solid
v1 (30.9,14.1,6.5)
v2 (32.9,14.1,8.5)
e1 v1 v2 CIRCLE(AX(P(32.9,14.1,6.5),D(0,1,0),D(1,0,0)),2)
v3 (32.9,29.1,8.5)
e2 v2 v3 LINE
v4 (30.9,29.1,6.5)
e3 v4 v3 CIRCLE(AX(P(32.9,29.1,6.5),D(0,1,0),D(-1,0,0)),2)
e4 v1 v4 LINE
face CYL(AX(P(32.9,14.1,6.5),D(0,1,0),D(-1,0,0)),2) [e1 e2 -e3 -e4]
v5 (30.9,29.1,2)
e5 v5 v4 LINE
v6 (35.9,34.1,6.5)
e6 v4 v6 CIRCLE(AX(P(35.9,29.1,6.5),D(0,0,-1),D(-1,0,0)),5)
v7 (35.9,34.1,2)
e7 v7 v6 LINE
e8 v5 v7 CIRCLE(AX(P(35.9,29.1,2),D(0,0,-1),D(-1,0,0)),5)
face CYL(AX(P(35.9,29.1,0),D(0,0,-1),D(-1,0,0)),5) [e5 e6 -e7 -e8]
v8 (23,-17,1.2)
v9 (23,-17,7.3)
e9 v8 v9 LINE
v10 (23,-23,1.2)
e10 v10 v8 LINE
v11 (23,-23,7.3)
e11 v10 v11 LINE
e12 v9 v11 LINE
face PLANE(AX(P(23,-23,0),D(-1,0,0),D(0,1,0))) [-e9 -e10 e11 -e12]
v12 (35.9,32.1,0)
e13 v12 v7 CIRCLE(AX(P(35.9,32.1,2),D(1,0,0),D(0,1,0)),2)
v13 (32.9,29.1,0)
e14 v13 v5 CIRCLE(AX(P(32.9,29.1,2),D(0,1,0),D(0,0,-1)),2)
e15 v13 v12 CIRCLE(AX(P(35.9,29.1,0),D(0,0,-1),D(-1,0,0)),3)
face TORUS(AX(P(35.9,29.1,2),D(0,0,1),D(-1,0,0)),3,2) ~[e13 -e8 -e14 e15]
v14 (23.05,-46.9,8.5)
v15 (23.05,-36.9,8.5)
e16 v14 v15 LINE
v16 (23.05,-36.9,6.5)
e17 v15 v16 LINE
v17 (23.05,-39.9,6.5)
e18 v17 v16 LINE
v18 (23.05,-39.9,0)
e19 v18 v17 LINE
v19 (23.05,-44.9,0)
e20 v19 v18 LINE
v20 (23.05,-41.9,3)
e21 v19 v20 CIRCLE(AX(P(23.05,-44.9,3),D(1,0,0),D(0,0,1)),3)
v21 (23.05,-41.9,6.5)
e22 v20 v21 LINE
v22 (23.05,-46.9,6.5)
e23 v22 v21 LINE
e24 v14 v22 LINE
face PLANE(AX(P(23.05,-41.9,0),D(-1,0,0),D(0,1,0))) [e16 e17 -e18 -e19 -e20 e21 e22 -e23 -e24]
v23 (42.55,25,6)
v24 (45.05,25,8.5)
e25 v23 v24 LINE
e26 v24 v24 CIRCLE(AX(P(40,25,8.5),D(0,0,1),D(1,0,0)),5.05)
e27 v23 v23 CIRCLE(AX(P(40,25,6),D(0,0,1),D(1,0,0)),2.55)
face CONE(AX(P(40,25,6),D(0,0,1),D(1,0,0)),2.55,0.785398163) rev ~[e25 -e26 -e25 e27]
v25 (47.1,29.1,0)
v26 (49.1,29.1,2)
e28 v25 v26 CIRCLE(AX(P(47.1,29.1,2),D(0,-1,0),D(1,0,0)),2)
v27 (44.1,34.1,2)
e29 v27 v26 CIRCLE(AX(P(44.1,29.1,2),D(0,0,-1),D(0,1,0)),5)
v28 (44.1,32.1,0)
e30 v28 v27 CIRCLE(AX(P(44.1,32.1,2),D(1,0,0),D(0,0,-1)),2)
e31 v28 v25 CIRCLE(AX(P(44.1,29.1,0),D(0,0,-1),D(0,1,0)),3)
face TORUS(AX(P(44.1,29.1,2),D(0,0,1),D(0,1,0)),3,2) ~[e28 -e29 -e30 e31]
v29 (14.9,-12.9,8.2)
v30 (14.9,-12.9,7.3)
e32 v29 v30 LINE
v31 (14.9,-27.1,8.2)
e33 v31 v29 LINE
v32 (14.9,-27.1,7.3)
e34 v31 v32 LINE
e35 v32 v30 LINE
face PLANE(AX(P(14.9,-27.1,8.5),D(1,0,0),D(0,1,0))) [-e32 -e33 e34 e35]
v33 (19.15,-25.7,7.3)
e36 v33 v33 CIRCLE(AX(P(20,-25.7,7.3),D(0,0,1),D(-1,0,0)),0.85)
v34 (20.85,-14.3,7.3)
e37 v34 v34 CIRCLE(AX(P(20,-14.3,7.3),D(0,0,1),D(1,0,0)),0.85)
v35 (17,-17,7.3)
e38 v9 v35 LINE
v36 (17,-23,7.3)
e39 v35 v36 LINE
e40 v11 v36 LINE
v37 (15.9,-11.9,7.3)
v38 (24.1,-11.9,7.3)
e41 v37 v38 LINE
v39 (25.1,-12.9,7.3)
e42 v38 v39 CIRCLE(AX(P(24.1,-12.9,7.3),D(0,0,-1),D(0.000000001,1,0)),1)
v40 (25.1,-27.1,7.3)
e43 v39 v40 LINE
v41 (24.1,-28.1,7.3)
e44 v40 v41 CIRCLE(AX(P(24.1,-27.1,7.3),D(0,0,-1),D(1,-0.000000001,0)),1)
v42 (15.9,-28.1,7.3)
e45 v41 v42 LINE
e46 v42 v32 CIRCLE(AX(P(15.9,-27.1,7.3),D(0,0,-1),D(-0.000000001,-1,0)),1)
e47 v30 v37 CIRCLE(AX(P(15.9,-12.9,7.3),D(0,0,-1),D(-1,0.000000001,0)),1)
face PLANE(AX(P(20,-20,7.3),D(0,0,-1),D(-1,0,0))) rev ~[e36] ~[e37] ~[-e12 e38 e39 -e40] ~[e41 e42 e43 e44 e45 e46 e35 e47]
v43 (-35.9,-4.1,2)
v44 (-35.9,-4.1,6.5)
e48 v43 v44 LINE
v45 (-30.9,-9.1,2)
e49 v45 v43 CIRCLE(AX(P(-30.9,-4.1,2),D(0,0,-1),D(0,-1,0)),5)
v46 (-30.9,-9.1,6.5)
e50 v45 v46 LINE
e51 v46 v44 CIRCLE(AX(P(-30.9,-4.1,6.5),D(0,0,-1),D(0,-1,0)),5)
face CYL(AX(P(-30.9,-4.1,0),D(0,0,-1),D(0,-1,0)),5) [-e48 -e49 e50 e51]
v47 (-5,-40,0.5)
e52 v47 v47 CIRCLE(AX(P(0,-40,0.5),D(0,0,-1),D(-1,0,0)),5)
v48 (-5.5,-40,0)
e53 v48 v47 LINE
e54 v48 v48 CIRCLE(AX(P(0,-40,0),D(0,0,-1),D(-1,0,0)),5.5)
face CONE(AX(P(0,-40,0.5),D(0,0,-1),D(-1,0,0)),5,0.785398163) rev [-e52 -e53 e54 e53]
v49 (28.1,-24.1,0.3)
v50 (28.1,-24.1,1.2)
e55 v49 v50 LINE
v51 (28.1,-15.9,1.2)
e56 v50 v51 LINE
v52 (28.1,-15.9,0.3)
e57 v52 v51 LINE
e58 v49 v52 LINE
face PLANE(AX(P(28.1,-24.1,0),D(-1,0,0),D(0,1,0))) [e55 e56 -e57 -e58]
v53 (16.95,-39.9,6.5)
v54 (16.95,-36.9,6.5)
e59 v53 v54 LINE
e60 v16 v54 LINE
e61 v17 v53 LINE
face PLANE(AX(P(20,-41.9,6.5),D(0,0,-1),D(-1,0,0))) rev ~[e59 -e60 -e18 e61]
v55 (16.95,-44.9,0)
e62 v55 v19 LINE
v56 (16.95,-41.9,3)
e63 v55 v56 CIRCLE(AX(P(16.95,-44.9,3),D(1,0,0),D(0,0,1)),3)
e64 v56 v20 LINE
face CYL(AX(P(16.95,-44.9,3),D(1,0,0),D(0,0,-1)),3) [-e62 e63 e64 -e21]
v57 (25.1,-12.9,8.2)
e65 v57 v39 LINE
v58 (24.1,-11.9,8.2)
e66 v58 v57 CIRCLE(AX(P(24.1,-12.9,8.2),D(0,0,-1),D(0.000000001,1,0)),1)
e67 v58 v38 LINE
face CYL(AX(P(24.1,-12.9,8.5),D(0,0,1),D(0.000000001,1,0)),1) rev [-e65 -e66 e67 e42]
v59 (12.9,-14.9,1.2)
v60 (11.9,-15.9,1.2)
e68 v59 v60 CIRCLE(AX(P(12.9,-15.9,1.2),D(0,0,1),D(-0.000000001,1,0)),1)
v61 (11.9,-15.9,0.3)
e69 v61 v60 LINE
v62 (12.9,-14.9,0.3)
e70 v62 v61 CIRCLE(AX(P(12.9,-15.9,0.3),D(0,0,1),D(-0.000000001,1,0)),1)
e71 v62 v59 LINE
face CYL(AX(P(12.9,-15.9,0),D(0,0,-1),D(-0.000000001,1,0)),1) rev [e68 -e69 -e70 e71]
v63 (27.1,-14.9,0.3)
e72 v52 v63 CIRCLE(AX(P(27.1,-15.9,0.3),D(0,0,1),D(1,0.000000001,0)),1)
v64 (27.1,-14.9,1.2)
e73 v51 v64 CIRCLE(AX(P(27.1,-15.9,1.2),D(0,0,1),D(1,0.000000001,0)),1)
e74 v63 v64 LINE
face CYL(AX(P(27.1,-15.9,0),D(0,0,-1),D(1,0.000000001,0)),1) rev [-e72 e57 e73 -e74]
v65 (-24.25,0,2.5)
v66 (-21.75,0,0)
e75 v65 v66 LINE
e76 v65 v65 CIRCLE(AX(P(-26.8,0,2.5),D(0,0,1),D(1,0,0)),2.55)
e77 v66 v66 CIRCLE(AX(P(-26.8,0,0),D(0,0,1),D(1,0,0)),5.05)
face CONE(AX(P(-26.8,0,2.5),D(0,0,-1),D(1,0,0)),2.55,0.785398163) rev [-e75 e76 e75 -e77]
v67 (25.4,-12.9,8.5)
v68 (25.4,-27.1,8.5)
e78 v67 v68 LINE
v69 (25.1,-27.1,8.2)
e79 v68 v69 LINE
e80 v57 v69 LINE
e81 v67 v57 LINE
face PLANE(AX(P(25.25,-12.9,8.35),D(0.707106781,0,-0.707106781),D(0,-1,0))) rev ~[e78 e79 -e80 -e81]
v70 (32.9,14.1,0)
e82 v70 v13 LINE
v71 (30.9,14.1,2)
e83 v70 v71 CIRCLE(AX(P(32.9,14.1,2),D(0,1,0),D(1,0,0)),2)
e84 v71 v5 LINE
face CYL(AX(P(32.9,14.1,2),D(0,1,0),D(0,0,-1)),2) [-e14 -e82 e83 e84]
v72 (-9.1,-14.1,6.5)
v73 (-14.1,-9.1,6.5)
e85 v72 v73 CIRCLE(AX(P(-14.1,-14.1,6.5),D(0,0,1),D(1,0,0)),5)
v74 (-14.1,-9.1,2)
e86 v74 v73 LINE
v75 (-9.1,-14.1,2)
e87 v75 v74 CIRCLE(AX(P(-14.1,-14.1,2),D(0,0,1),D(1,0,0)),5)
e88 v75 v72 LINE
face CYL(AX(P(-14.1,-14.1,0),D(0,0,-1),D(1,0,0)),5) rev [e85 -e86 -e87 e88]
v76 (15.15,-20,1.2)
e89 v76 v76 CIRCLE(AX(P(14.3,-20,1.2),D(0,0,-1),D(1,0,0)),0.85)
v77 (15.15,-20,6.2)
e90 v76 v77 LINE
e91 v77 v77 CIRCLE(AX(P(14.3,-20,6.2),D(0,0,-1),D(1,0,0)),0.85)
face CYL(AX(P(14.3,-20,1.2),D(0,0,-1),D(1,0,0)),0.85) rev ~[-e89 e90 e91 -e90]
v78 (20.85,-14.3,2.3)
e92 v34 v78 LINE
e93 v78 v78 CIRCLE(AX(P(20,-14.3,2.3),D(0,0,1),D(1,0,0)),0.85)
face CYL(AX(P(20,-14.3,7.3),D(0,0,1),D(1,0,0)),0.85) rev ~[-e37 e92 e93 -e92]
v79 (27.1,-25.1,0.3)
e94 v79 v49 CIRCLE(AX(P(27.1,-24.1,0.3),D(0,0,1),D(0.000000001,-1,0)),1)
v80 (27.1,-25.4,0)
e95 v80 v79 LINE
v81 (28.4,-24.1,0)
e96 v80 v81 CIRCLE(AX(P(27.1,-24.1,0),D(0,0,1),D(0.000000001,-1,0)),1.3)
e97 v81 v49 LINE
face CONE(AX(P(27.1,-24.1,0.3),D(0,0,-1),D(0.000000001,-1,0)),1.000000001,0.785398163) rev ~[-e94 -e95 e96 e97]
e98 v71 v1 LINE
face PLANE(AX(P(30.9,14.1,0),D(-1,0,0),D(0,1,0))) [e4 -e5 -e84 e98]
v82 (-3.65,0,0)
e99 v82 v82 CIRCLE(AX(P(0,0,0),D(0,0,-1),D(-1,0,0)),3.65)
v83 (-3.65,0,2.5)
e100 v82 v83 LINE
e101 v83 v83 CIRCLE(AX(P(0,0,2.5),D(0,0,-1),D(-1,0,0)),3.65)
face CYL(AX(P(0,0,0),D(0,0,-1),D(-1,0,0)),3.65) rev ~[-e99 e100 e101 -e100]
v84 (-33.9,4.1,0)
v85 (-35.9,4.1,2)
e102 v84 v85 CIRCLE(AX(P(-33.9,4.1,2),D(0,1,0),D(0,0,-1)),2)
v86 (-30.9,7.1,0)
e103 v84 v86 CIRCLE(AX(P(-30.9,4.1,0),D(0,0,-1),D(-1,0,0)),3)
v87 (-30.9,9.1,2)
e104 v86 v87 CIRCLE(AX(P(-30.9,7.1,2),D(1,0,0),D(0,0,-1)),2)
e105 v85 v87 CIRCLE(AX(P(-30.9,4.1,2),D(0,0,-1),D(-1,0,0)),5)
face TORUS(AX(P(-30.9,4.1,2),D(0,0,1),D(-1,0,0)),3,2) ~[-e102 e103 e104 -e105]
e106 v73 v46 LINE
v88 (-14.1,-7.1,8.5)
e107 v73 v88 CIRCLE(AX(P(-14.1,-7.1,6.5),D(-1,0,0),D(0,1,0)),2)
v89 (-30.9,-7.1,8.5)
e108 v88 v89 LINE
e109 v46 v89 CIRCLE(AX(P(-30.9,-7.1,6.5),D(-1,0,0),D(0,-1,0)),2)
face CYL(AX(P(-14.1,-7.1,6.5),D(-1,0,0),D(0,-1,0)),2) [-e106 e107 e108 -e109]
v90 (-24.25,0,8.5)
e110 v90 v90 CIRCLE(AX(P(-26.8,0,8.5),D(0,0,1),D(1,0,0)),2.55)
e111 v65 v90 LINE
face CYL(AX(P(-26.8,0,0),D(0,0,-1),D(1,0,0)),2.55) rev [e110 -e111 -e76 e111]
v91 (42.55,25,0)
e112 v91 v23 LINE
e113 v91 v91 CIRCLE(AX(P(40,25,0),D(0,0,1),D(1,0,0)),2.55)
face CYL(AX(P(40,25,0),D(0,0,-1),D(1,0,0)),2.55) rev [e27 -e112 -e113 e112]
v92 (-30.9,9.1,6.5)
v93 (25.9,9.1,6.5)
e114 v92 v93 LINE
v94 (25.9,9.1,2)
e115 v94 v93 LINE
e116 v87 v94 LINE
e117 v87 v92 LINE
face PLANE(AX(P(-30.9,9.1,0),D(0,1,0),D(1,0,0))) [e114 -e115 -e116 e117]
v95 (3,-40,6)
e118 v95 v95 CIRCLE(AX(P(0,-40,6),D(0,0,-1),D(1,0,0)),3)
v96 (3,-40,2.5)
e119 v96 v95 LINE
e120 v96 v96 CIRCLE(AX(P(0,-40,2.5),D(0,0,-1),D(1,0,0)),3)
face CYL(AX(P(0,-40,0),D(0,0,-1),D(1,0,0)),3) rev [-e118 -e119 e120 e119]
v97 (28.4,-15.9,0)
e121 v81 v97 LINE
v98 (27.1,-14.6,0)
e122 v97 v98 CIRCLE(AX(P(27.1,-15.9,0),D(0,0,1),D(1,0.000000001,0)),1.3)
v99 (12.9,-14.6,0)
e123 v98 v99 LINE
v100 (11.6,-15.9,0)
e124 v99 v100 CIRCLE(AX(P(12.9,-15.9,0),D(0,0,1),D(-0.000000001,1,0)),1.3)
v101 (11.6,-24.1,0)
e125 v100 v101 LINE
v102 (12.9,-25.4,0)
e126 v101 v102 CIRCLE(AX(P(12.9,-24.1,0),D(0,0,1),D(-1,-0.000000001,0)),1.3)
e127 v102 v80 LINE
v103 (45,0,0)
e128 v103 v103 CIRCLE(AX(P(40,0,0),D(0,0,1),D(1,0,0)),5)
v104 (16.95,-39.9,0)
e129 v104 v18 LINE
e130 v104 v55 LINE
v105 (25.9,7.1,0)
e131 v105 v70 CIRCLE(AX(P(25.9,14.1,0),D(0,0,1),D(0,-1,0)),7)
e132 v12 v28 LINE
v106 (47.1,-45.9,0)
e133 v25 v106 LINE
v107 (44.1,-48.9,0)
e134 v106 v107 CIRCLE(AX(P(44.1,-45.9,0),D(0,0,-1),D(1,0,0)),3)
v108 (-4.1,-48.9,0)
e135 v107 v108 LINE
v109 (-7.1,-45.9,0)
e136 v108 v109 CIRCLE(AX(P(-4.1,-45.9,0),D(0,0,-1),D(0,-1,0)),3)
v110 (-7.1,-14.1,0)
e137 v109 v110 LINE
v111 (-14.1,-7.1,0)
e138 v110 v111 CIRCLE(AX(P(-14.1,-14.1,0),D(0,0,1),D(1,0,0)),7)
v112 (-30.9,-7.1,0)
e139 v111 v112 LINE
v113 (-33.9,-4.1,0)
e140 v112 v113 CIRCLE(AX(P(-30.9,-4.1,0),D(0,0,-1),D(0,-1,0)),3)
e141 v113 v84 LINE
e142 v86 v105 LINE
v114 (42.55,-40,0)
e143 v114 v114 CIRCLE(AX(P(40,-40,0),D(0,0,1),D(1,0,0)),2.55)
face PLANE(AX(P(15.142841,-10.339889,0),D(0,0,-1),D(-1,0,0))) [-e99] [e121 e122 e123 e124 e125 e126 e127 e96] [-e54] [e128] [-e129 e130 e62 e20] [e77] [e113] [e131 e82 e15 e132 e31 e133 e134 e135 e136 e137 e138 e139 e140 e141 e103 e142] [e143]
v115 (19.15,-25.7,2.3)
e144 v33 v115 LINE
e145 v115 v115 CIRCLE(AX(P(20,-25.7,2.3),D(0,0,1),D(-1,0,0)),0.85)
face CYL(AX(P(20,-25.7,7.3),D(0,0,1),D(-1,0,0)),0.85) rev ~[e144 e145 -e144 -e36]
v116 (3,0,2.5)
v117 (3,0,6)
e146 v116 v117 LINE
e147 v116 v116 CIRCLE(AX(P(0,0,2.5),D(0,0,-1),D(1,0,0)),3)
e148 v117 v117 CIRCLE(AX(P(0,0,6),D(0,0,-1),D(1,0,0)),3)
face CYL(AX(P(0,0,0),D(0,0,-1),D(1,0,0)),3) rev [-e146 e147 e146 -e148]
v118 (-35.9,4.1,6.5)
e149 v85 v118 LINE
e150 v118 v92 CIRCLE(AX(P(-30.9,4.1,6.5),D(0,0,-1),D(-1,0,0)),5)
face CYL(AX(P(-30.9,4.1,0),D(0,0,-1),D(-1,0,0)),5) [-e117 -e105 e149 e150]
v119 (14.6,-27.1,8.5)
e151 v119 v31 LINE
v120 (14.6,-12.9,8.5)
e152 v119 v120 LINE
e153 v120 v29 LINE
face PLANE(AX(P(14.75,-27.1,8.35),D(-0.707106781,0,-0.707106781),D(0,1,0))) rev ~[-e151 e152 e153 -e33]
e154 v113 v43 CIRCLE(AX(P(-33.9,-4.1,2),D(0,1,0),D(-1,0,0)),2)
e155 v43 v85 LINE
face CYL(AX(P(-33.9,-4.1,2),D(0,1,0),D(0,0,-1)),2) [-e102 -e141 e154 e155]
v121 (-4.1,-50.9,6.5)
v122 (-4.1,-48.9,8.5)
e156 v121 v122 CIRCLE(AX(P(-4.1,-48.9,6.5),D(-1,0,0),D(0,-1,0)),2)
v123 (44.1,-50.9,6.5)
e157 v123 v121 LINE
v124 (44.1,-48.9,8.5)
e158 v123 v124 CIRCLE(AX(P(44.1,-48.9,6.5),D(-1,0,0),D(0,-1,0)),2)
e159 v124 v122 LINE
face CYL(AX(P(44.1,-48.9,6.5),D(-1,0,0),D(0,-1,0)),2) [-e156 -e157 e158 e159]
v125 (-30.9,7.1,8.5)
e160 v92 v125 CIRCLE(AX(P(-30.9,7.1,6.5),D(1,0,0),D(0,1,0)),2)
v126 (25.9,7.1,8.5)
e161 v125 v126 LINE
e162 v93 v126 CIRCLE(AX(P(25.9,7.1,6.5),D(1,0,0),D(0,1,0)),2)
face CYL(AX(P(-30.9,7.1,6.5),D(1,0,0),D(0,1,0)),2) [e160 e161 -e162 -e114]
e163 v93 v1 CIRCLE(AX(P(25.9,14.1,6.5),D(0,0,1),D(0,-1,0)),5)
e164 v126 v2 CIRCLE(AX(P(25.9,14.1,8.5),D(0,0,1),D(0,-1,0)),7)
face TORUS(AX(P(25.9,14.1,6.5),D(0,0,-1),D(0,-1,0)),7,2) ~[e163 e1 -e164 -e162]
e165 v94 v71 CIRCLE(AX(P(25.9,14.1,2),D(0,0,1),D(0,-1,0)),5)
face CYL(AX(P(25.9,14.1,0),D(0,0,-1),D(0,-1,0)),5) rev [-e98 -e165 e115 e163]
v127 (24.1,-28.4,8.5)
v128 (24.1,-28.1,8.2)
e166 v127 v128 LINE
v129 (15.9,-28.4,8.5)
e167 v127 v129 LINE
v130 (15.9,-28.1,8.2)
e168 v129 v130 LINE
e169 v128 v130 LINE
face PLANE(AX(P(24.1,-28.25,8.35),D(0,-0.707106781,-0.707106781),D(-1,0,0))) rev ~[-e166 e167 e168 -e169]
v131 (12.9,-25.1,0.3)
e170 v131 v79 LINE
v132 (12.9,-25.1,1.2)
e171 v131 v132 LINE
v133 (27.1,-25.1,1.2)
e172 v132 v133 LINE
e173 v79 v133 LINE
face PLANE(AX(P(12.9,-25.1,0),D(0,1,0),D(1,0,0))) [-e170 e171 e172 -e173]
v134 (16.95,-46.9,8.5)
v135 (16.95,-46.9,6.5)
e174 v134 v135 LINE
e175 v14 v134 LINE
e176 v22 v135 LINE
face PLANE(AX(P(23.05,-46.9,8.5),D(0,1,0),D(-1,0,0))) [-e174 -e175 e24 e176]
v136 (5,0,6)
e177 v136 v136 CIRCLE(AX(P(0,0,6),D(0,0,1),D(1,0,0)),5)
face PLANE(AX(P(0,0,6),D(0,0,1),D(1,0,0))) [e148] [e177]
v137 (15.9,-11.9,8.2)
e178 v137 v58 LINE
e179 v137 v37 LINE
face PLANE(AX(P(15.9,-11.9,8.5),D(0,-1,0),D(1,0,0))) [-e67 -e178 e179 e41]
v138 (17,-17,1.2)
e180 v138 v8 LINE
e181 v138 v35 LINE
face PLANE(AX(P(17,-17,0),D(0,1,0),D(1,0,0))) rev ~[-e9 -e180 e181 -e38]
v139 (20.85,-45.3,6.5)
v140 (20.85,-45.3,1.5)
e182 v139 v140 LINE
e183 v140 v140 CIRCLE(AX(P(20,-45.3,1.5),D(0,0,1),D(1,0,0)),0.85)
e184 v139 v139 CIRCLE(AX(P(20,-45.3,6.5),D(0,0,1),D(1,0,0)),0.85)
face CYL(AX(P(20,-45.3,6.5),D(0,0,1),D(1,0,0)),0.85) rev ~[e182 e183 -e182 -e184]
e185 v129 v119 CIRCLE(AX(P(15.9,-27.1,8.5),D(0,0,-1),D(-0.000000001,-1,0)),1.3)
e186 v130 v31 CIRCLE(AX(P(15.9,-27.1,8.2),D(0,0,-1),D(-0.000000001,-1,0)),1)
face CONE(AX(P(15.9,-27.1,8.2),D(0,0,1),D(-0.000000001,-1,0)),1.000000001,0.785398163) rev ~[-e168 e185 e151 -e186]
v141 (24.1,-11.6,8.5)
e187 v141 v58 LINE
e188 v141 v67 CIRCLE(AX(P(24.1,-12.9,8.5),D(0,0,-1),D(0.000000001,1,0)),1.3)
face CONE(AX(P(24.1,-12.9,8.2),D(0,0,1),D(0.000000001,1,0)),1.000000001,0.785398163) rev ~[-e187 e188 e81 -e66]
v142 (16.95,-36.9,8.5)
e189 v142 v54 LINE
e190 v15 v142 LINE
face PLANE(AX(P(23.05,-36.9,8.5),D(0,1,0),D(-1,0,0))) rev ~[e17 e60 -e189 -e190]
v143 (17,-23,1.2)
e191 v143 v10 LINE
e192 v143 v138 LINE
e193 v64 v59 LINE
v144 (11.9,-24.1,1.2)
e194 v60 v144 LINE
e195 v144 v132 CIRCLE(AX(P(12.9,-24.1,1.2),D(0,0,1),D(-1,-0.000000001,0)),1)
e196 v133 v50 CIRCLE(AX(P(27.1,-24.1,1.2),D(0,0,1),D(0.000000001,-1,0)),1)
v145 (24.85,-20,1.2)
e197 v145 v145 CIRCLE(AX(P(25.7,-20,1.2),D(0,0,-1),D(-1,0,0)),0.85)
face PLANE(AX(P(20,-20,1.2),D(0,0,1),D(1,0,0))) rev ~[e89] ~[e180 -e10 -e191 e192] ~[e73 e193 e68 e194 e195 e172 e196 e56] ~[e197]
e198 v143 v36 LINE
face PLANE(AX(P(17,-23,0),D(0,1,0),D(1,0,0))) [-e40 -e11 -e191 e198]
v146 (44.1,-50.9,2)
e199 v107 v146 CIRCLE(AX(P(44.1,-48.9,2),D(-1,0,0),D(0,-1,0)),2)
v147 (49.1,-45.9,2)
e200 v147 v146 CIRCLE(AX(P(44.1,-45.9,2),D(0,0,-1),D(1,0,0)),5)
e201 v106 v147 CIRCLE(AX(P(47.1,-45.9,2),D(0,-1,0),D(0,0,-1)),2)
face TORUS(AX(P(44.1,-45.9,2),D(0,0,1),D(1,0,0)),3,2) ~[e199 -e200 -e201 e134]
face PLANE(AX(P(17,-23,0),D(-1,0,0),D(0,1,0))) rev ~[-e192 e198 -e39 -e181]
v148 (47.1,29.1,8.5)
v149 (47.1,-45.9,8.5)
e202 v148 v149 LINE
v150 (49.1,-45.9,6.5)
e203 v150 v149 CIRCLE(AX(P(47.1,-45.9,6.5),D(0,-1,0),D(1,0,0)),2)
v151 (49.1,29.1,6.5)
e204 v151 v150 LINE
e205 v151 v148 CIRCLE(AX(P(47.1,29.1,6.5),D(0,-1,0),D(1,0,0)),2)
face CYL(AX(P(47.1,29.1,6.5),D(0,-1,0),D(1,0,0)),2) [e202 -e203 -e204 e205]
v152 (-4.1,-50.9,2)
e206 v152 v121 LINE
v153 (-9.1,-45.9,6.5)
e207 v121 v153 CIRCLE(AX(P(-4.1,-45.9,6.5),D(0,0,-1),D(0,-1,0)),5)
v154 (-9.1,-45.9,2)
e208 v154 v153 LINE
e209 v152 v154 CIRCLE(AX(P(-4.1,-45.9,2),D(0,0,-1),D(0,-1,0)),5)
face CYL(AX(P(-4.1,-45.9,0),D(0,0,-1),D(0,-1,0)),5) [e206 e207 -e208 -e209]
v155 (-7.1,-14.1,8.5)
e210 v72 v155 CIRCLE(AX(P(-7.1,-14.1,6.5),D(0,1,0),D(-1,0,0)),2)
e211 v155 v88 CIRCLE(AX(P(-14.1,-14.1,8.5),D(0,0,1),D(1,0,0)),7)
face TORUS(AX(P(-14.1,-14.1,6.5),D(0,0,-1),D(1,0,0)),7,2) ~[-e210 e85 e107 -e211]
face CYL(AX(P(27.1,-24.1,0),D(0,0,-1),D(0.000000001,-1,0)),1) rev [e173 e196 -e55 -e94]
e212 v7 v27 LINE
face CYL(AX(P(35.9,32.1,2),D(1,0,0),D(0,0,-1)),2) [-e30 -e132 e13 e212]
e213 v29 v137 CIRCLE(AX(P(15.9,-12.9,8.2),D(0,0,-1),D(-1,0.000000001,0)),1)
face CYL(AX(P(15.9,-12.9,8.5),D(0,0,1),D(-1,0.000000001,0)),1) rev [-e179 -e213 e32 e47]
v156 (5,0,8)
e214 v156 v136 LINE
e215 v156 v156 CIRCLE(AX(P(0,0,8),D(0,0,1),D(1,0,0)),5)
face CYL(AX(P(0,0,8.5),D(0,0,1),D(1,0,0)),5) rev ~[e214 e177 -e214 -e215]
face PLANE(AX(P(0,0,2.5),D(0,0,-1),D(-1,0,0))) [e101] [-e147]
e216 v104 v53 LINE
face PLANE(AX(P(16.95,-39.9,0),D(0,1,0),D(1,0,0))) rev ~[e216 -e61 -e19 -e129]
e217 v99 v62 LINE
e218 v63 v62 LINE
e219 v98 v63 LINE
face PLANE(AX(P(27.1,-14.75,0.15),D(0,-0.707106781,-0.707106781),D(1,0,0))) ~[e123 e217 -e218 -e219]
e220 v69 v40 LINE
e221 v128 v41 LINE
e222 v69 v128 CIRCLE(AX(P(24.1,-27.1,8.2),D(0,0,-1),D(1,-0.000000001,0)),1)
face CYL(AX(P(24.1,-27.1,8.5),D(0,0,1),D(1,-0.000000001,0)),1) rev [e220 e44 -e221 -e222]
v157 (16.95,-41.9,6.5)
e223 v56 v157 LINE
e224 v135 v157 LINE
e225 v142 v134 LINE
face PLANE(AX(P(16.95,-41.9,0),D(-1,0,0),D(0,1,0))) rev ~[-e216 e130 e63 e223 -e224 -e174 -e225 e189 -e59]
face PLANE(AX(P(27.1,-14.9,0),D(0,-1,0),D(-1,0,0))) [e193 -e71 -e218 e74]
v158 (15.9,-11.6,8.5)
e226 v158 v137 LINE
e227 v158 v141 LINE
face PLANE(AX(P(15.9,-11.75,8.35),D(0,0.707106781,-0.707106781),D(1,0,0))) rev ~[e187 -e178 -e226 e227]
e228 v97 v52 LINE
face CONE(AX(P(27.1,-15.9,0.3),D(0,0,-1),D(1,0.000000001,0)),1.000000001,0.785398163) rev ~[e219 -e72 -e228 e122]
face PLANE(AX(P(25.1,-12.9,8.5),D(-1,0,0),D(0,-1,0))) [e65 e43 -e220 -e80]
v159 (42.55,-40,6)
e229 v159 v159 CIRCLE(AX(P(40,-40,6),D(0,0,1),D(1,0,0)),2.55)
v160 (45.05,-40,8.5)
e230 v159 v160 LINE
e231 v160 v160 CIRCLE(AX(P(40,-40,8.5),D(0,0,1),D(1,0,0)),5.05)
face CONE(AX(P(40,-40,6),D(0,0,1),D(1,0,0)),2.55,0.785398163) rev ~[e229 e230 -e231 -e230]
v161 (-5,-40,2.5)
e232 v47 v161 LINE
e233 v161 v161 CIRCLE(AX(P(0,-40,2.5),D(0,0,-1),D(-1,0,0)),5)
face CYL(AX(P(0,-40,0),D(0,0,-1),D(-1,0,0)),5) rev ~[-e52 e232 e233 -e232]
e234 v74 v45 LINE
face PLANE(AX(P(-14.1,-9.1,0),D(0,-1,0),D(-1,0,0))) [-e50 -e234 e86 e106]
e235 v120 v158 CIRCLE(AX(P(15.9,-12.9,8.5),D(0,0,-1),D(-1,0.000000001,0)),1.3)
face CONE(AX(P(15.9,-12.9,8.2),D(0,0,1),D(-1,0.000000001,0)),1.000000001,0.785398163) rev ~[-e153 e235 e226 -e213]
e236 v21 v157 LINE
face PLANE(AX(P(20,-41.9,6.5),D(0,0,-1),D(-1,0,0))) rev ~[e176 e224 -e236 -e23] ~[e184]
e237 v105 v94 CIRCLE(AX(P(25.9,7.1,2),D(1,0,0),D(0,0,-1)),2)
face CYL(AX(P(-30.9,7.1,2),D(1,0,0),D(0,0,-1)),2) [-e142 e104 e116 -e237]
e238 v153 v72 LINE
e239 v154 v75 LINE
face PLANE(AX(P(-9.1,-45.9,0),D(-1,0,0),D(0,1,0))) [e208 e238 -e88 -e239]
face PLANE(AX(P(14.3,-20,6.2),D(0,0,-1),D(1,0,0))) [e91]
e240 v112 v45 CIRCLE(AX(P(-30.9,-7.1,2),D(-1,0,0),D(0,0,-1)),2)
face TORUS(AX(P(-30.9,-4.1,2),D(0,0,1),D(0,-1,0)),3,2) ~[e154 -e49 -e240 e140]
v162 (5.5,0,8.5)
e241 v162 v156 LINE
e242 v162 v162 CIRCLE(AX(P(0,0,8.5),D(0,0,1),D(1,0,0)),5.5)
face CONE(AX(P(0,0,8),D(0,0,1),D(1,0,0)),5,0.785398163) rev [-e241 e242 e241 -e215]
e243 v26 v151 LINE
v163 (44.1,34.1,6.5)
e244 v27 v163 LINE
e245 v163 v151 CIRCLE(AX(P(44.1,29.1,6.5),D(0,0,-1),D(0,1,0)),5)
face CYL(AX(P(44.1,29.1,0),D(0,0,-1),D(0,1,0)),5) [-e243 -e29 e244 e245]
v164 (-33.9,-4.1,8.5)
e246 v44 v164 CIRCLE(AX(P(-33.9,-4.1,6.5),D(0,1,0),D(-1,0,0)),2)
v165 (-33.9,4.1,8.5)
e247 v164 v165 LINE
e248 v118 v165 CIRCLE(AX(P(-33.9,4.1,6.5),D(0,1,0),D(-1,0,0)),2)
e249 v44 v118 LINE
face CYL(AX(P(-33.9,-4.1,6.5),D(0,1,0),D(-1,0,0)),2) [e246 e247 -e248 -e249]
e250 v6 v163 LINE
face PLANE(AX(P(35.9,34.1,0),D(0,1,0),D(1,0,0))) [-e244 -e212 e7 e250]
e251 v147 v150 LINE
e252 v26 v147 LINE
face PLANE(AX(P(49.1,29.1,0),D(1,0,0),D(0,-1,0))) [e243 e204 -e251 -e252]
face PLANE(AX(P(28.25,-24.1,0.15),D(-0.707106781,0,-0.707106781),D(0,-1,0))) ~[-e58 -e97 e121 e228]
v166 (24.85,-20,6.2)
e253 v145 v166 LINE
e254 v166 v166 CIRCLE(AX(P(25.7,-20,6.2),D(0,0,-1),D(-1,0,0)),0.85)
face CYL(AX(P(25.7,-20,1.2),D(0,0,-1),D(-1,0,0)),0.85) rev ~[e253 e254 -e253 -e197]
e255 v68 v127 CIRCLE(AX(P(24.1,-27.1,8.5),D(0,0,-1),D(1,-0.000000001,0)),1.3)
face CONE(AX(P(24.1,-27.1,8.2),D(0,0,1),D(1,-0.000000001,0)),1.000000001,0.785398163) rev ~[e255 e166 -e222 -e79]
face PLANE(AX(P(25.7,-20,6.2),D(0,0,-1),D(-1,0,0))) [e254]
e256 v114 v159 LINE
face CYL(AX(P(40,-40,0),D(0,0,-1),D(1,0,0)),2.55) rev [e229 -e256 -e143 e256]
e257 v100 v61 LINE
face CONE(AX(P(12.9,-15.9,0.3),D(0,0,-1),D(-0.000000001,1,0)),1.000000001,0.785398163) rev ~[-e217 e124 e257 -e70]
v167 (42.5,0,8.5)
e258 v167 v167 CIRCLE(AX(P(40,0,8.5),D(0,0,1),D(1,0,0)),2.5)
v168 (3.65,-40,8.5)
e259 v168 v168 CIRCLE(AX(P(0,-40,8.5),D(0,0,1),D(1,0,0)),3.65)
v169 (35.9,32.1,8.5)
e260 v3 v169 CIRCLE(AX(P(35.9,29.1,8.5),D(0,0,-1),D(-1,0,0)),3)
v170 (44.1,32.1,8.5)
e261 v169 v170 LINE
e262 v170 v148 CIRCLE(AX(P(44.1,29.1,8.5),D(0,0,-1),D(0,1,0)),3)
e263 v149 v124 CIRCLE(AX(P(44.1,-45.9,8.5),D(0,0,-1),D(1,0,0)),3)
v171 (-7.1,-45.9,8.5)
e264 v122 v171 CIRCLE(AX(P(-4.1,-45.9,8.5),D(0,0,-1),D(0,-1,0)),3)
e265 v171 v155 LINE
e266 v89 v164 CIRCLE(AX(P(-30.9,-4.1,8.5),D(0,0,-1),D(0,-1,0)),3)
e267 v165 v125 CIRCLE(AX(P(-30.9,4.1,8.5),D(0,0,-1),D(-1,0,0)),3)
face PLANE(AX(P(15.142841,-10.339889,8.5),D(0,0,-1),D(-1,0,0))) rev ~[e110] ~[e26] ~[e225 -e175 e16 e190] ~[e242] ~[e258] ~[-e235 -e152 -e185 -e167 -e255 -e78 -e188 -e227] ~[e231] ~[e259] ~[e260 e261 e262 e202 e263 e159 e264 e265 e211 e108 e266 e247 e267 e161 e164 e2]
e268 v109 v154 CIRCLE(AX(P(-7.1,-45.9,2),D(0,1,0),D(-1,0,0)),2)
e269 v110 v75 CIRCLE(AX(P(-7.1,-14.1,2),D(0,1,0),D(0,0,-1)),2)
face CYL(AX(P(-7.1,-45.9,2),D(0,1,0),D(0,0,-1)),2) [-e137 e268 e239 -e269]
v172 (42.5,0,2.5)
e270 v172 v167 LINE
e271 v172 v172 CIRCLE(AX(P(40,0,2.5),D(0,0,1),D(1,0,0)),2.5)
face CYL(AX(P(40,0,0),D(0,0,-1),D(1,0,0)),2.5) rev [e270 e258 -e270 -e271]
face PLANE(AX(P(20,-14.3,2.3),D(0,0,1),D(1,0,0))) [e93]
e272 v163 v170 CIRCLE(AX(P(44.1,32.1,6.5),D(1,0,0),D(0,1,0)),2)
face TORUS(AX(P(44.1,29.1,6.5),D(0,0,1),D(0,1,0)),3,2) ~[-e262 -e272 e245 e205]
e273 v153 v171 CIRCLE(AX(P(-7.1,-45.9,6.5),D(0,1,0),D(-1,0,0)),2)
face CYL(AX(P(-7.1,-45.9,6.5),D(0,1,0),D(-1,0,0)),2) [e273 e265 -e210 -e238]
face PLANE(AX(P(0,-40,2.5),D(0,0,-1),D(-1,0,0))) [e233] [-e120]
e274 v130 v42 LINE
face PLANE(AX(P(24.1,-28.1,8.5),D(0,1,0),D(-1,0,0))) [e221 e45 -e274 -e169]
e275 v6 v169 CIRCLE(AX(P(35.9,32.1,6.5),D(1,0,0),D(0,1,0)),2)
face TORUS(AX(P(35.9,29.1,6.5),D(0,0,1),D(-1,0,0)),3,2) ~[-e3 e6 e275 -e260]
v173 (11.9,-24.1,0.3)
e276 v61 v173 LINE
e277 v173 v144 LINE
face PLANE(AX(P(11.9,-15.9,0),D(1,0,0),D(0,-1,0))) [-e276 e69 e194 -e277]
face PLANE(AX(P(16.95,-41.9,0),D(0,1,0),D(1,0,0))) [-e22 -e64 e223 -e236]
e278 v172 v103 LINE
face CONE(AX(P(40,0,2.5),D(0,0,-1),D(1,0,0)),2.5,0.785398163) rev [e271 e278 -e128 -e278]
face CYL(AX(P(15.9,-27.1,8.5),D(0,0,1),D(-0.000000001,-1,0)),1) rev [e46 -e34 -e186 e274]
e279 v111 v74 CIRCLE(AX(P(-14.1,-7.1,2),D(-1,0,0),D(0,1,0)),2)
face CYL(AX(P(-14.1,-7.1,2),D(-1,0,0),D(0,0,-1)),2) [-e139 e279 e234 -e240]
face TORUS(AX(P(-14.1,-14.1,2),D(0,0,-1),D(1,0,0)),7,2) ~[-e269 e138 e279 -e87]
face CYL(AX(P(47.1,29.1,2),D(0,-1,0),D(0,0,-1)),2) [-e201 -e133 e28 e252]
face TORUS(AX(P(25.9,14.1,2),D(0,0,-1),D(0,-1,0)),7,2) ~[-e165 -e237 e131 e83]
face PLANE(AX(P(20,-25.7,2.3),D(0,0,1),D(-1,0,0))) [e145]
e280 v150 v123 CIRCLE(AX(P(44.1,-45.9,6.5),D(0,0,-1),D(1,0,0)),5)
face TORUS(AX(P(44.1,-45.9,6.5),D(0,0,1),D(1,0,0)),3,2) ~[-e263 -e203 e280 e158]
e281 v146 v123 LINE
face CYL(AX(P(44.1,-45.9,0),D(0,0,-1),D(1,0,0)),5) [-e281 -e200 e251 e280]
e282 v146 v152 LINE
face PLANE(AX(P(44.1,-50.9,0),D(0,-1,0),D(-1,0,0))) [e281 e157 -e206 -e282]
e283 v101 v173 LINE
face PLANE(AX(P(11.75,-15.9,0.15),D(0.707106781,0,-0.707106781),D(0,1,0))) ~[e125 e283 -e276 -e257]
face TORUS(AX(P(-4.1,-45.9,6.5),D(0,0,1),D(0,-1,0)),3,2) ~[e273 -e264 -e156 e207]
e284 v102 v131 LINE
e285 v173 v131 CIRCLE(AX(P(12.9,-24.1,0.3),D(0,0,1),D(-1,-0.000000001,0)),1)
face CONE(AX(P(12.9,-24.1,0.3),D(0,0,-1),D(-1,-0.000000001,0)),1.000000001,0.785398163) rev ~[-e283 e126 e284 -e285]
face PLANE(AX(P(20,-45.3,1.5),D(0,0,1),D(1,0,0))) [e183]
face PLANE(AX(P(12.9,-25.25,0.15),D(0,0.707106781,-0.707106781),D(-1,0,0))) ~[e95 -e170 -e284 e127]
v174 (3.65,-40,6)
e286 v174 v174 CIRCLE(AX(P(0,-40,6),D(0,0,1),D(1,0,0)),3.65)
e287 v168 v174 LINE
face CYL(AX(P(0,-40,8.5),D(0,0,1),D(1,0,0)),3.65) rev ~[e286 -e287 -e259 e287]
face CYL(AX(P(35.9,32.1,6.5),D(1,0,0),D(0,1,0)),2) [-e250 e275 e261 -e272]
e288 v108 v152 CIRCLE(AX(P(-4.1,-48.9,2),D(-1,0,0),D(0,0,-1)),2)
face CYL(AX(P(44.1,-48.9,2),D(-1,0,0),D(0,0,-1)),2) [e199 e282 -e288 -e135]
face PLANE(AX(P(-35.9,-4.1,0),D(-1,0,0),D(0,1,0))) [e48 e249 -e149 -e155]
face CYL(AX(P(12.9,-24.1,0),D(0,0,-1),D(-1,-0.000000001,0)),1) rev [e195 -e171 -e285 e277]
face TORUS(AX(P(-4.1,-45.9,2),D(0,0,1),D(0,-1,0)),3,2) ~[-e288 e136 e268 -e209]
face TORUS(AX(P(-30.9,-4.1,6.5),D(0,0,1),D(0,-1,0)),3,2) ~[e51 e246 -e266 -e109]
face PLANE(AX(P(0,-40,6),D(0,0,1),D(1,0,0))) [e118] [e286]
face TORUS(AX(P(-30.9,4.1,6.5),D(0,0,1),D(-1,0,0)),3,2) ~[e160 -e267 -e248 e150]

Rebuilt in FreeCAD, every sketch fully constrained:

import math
import FreeCAD as App
import Part
import Sketcher
from FreeCAD import Vector


def edges_at(feature, points):
    """Names of the edges that pass closest to the given points."""
    edges = feature.Shape.Edges
    near = lambda p: min(range(len(edges)), key=lambda i: edges[i].distToShape(Part.Vertex(*p))[0])
    return sorted({f"Edge{near(p) + 1}" for p in points})

doc = App.newDocument("Part")
body = doc.addObject("PartDesign::Body", "Body")

# Sketch on XY plane
sketch1 = doc.addObject("Sketcher::SketchObject", "Sketch")
body.addObject(sketch1)
sketch1.AttachmentSupport = (doc.XY_Plane, [""])
sketch1.MapMode = "FlatFace"
sketch1.addGeometry([
    Part.ArcOfCircle(Part.Circle(Vector(25.9, 14.1, 0), Vector(0, 0, 1), 5), math.radians(-90), math.radians(0)),  # 0
    Part.LineSegment(Vector(25.9, 9.1, 0), Vector(-30.9, 9.1, 0)),  # 1
    Part.ArcOfCircle(Part.Circle(Vector(-30.9, 4.1, 0), Vector(0, 0, 1), 5), math.radians(90), math.radians(180)),  # 2
    Part.LineSegment(Vector(-35.9, 4.1, 0), Vector(-35.9, -4.1, 0)),  # 3
    Part.ArcOfCircle(Part.Circle(Vector(-30.9, -4.1, 0), Vector(0, 0, 1), 5), math.radians(180), math.radians(270)),  # 4
    Part.LineSegment(Vector(-30.9, -9.1, 0), Vector(-14.1, -9.1, 0)),  # 5
    Part.ArcOfCircle(Part.Circle(Vector(-14.1, -14.1, 0), Vector(0, 0, 1), 5), math.radians(0), math.radians(90)),  # 6
    Part.LineSegment(Vector(-9.1, -14.1, 0), Vector(-9.1, -45.9, 0)),  # 7
    Part.ArcOfCircle(Part.Circle(Vector(-4.1, -45.9, 0), Vector(0, 0, 1), 5), math.radians(180), math.radians(270)),  # 8
    Part.LineSegment(Vector(-4.1, -50.9, 0), Vector(44.1, -50.9, 0)),  # 9
    Part.ArcOfCircle(Part.Circle(Vector(44.1, -45.9, 0), Vector(0, 0, 1), 5), math.radians(-90), math.radians(0)),  # 10
    Part.LineSegment(Vector(49.1, -45.9, 0), Vector(49.1, 29.1, 0)),  # 11
    Part.ArcOfCircle(Part.Circle(Vector(44.1, 29.1, 0), Vector(0, 0, 1), 5), math.radians(0), math.radians(90)),  # 12
    Part.LineSegment(Vector(44.1, 34.1, 0), Vector(35.9, 34.1, 0)),  # 13
    Part.ArcOfCircle(Part.Circle(Vector(35.9, 29.1, 0), Vector(0, 0, 1), 5), math.radians(90), math.radians(180)),  # 14
    Part.LineSegment(Vector(30.9, 29.1, 0), Vector(30.9, 14.1, 0)),  # 15
    Part.Circle(Vector(40, -40, 0), Vector(0, 0, 1), 2.55),  # 16
    Part.LineSegment(Vector(16.95, -41.9, 0), Vector(16.95, -39.9, 0)),  # 17
    Part.LineSegment(Vector(16.95, -39.9, 0), Vector(23.05, -39.9, 0)),  # 18
    Part.LineSegment(Vector(23.05, -39.9, 0), Vector(23.05, -41.9, 0)),  # 19
    Part.LineSegment(Vector(23.05, -41.9, 0), Vector(16.95, -41.9, 0)),  # 20
    Part.LineSegment(Vector(17, -23, 0), Vector(17, -17, 0)),  # 21
    Part.LineSegment(Vector(17, -17, 0), Vector(23, -17, 0)),  # 22
    Part.LineSegment(Vector(23, -17, 0), Vector(23, -23, 0)),  # 23
    Part.LineSegment(Vector(23, -23, 0), Vector(17, -23, 0)),  # 24
    Part.Circle(Vector(0, -40, 0), Vector(0, 0, 1), 3),  # 25
    Part.Circle(Vector(40, 0, 0), Vector(0, 0, 1), 2.5),  # 26
    Part.Circle(Vector(40, 25, 0), Vector(0, 0, 1), 2.55),  # 27
    Part.Circle(Vector(0, 0, 0), Vector(0, 0, 1), 3),  # 28
    Part.Circle(Vector(-26.8, 0, 0), Vector(0, 0, 1), 2.55),  # 29
], False)
sketch1.addConstraint([
    Sketcher.Constraint("Tangent", 0, 1, 1, 1),
    Sketcher.Constraint("Tangent", 1, 2, 2, 1),
    Sketcher.Constraint("Tangent", 2, 2, 3, 1),
    Sketcher.Constraint("Tangent", 3, 2, 4, 1),
    Sketcher.Constraint("Tangent", 4, 2, 5, 1),
    Sketcher.Constraint("Tangent", 5, 2, 6, 2),
    Sketcher.Constraint("Tangent", 6, 1, 7, 1),
    Sketcher.Constraint("Tangent", 7, 2, 8, 1),
    Sketcher.Constraint("Tangent", 8, 2, 9, 1),
    Sketcher.Constraint("Tangent", 9, 2, 10, 1),
    Sketcher.Constraint("Tangent", 10, 2, 11, 1),
    Sketcher.Constraint("Tangent", 11, 2, 12, 1),
    Sketcher.Constraint("Tangent", 12, 2, 13, 1),
    Sketcher.Constraint("Tangent", 13, 2, 14, 1),
    Sketcher.Constraint("Tangent", 14, 2, 15, 1),
    Sketcher.Constraint("Tangent", 15, 2, 0, 2),
    Sketcher.Constraint("Coincident", 17, 2, 18, 1),
    Sketcher.Constraint("Coincident", 18, 2, 19, 1),
    Sketcher.Constraint("Coincident", 19, 2, 20, 1),
    Sketcher.Constraint("Coincident", 20, 2, 17, 1),
    Sketcher.Constraint("Coincident", 21, 2, 22, 1),
    Sketcher.Constraint("Coincident", 22, 2, 23, 1),
    Sketcher.Constraint("Coincident", 23, 2, 24, 1),
    Sketcher.Constraint("Coincident", 24, 2, 21, 1),
    Sketcher.Constraint("Horizontal", 1),
    Sketcher.Constraint("Vertical", 3),
    Sketcher.Constraint("Horizontal", 5),
    Sketcher.Constraint("Vertical", 7),
    Sketcher.Constraint("Horizontal", 9),
    Sketcher.Constraint("Vertical", 11),
    Sketcher.Constraint("Horizontal", 13),
    Sketcher.Constraint("Vertical", 15),
    Sketcher.Constraint("Vertical", 17),
    Sketcher.Constraint("Horizontal", 18),
    Sketcher.Constraint("Vertical", 19),
    Sketcher.Constraint("Horizontal", 20),
    Sketcher.Constraint("Vertical", 21),
    Sketcher.Constraint("Horizontal", 22),
    Sketcher.Constraint("Vertical", 23),
    Sketcher.Constraint("Horizontal", 24),
    Sketcher.Constraint("Coincident", 28, 3, -1, 1),
    Sketcher.Constraint("Equal", 0, 2),
    Sketcher.Constraint("Equal", 2, 4),
    Sketcher.Constraint("Equal", 4, 6),
    Sketcher.Constraint("Equal", 6, 8),
    Sketcher.Constraint("Equal", 8, 10),
    Sketcher.Constraint("Equal", 10, 12),
    Sketcher.Constraint("Equal", 12, 14),
    Sketcher.Constraint("Equal", 16, 27),
    Sketcher.Constraint("Equal", 25, 28),
    Sketcher.Constraint("Equal", 27, 29),
    Sketcher.Constraint("PointOnObject", 25, 3, -2),
    Sketcher.Constraint("PointOnObject", 26, 3, -1),
    Sketcher.Constraint("PointOnObject", 29, 3, -1),
    Sketcher.Constraint("Horizontal", 16, 3, 25, 3),
    Sketcher.Constraint("Vertical", 16, 3, 26, 3),
    Sketcher.Constraint("Vertical", 26, 3, 27, 3),
    Sketcher.Constraint("Equal", 13, 3),
    Sketcher.Constraint("Equal", 24, 21),
    Sketcher.Constraint("Diameter", 25, 6.0),
    Sketcher.Constraint("Diameter", 26, 5.0),
    Sketcher.Constraint("Radius", 0, 5.0),
    Sketcher.Constraint("Diameter", 16, 5.1),
    Sketcher.Constraint("DistanceX", 22, 1, 22, 2, 6.0),
    Sketcher.Constraint("DistanceY", 11, 1, 11, 2, 75.0),
    Sketcher.Constraint("DistanceY", 15, 2, 15, 1, 15.0),
    Sketcher.Constraint("DistanceY", 17, 1, 17, 2, 2.0),
    Sketcher.Constraint("DistanceX", 1, 2, 1, 1, 56.8),
    Sketcher.Constraint("DistanceX", 5, 1, 5, 2, 16.8),
    Sketcher.Constraint("DistanceX", 9, 1, 9, 2, 48.2),
    Sketcher.Constraint("DistanceX", 18, 1, 18, 2, 6.1),
    Sketcher.Constraint("DistanceX", -1, 1, 16, 3, 40.0),
    Sketcher.Constraint("DistanceY", 16, 3, -1, 1, 40.0),
    Sketcher.Constraint("DistanceY", -1, 1, 27, 3, 25.0),
    Sketcher.Constraint("DistanceX", -1, 1, 21, 2, 17.0),
    Sketcher.Constraint("DistanceY", 21, 2, -1, 1, 17.0),
    Sketcher.Constraint("DistanceY", 8, 3, 17, 2, 6.0),
    Sketcher.Constraint("DistanceX", -1, 1, 0, 3, 25.9),
    Sketcher.Constraint("DistanceY", -1, 1, 0, 3, 14.1),
    Sketcher.Constraint("DistanceX", 29, 3, -1, 1, 26.8),
    Sketcher.Constraint("DistanceX", -1, 1, 17, 2, 16.95),
])
pad1 = doc.addObject("PartDesign::Pad", "Pad")
body.addObject(pad1)
pad1.Profile = sketch1
pad1.Length = 8.5
doc.recompute()

chamfer = doc.addObject("PartDesign::Chamfer", "Chamfer")
body.addObject(chamfer)
chamfer.Base = (pad1, edges_at(pad1, [
    (37.5, 0, 0),
    (37.45, -40, 8.5),
    (37.45, 25, 8.5),
    (-29.35, 0, 0),
]))
chamfer.Size = 2.5
doc.recompute()

fillet = doc.addObject("PartDesign::Fillet", "Fillet")
body.addObject(fillet)
fillet.Base = (chamfer, edges_at(chamfer, [(20, -41.9, 0)]))
fillet.Radius = 3

# Sketch on XY plane
sketch2 = doc.addObject("Sketcher::SketchObject", "Sketch001")
body.addObject(sketch2)
sketch2.AttachmentSupport = (doc.XY_Plane, [""])
sketch2.MapMode = "FlatFace"
sketch2.AttachmentOffset = App.Placement(Vector(0, 0, 8.5), App.Rotation())
sketch2.addGeometry([
    Part.LineSegment(Vector(24.1, -11.9, 0), Vector(15.9, -11.9, 0)),  # 0
    Part.ArcOfCircle(Part.Circle(Vector(15.9, -12.9, 0), Vector(0, 0, 1), 1), math.radians(90), math.radians(180)),  # 1
    Part.LineSegment(Vector(14.9, -12.9, 0), Vector(14.9, -27.1, 0)),  # 2
    Part.ArcOfCircle(Part.Circle(Vector(15.9, -27.1, 0), Vector(0, 0, 1), 1), math.radians(-180), math.radians(-90)),  # 3
    Part.LineSegment(Vector(15.9, -28.1, 0), Vector(24.1, -28.1, 0)),  # 4
    Part.ArcOfCircle(Part.Circle(Vector(24.1, -27.1, 0), Vector(0, 0, 1), 1), math.radians(-90), math.radians(0)),  # 5
    Part.LineSegment(Vector(25.1, -27.1, 0), Vector(25.1, -12.9, 0)),  # 6
    Part.ArcOfCircle(Part.Circle(Vector(24.1, -12.9, 0), Vector(0, 0, 1), 1), math.radians(0), math.radians(90)),  # 7
], False)
sketch2.addConstraint([
    Sketcher.Constraint("Tangent", 0, 2, 1, 1),
    Sketcher.Constraint("Tangent", 1, 2, 2, 1),
    Sketcher.Constraint("Tangent", 2, 2, 3, 1),
    Sketcher.Constraint("Tangent", 3, 2, 4, 1),
    Sketcher.Constraint("Tangent", 4, 2, 5, 1),
    Sketcher.Constraint("Tangent", 5, 2, 6, 1),
    Sketcher.Constraint("Tangent", 6, 2, 7, 1),
    Sketcher.Constraint("Tangent", 7, 2, 0, 1),
    Sketcher.Constraint("Horizontal", 0),
    Sketcher.Constraint("Vertical", 2),
    Sketcher.Constraint("Horizontal", 4),
    Sketcher.Constraint("Vertical", 6),
    Sketcher.Constraint("Equal", 1, 3),
    Sketcher.Constraint("Equal", 3, 5),
    Sketcher.Constraint("Equal", 5, 7),
    Sketcher.Constraint("Radius", 1, 1.0),
    Sketcher.Constraint("DistanceX", 0, 2, 0, 1, 8.2),
    Sketcher.Constraint("DistanceY", 2, 2, 2, 1, 14.2),
    Sketcher.Constraint("DistanceX", -1, 1, 1, 3, 15.9),
    Sketcher.Constraint("DistanceY", 1, 3, -1, 1, 12.9),
])
pocket1 = doc.addObject("PartDesign::Pocket", "Pocket")
body.addObject(pocket1)
pocket1.Profile = sketch2
pocket1.Length = 1.2

# Sketch on XY plane
sketch3 = doc.addObject("Sketcher::SketchObject", "Sketch002")
body.addObject(sketch3)
sketch3.AttachmentSupport = (doc.XY_Plane, [""])
sketch3.MapMode = "FlatFace"
sketch3.AttachmentOffset = App.Placement(Vector(0, 0, 7.3), App.Rotation())
sketch3.addGeometry([
    Part.Circle(Vector(20, -14.3, 0), Vector(0, 0, 1), 0.85),
    Part.Circle(Vector(20, -25.7, 0), Vector(0, 0, 1), 0.85),
], False)
sketch3.addConstraint([
    Sketcher.Constraint("Equal", 0, 1),
    Sketcher.Constraint("Vertical", 0, 3, 1, 3),
    Sketcher.Constraint("Diameter", 0, 1.7),
    Sketcher.Constraint("DistanceX", -1, 1, 0, 3, 20.0),
    Sketcher.Constraint("DistanceY", 0, 3, -1, 1, 14.3),
    Sketcher.Constraint("DistanceY", 1, 3, -1, 1, 25.7),
])
pocket2 = doc.addObject("PartDesign::Pocket", "Pocket001")
body.addObject(pocket2)
pocket2.Profile = sketch3
pocket2.Length = 5

# Sketch on XY plane
sketch4 = doc.addObject("Sketcher::SketchObject", "Sketch003")
body.addObject(sketch4)
sketch4.AttachmentSupport = (doc.XY_Plane, [""])
sketch4.MapMode = "FlatFace"
sketch4.addGeometry([
    Part.LineSegment(Vector(12.9, -14.9, 0), Vector(27.1, -14.9, 0)),  # 0
    Part.ArcOfCircle(Part.Circle(Vector(27.1, -15.9, 0), Vector(0, 0, 1), 1), math.radians(0), math.radians(90)),  # 1
    Part.LineSegment(Vector(28.1, -15.9, 0), Vector(28.1, -24.1, 0)),  # 2
    Part.ArcOfCircle(Part.Circle(Vector(27.1, -24.1, 0), Vector(0, 0, 1), 1), math.radians(-90), math.radians(0)),  # 3
    Part.LineSegment(Vector(27.1, -25.1, 0), Vector(12.9, -25.1, 0)),  # 4
    Part.ArcOfCircle(Part.Circle(Vector(12.9, -24.1, 0), Vector(0, 0, 1), 1), math.radians(-180), math.radians(-90)),  # 5
    Part.LineSegment(Vector(11.9, -24.1, 0), Vector(11.9, -15.9, 0)),  # 6
    Part.ArcOfCircle(Part.Circle(Vector(12.9, -15.9, 0), Vector(0, 0, 1), 1), math.radians(90), math.radians(180)),  # 7
], False)
sketch4.addConstraint([
    Sketcher.Constraint("Tangent", 0, 2, 1, 2),
    Sketcher.Constraint("Tangent", 1, 1, 2, 1),
    Sketcher.Constraint("Tangent", 2, 2, 3, 2),
    Sketcher.Constraint("Tangent", 3, 1, 4, 1),
    Sketcher.Constraint("Tangent", 4, 2, 5, 2),
    Sketcher.Constraint("Tangent", 5, 1, 6, 1),
    Sketcher.Constraint("Tangent", 6, 2, 7, 2),
    Sketcher.Constraint("Tangent", 7, 1, 0, 1),
    Sketcher.Constraint("Horizontal", 0),
    Sketcher.Constraint("Vertical", 2),
    Sketcher.Constraint("Horizontal", 4),
    Sketcher.Constraint("Vertical", 6),
    Sketcher.Constraint("Equal", 1, 3),
    Sketcher.Constraint("Equal", 3, 5),
    Sketcher.Constraint("Equal", 5, 7),
    Sketcher.Constraint("Radius", 1, 1.0),
    Sketcher.Constraint("DistanceX", 0, 1, 0, 2, 14.2),
    Sketcher.Constraint("DistanceY", 2, 2, 2, 1, 8.2),
    Sketcher.Constraint("DistanceX", -1, 1, 1, 3, 27.1),
    Sketcher.Constraint("DistanceY", 1, 3, -1, 1, 15.9),
])
pocket3 = doc.addObject("PartDesign::Pocket", "Pocket002")
body.addObject(pocket3)
pocket3.Profile = sketch4
pocket3.Length = 1.2
pocket3.Reversed = True

# Sketch on XY plane
sketch5 = doc.addObject("Sketcher::SketchObject", "Sketch004")
body.addObject(sketch5)
sketch5.AttachmentSupport = (doc.XY_Plane, [""])
sketch5.MapMode = "FlatFace"
sketch5.AttachmentOffset = App.Placement(Vector(0, 0, 1.2), App.Rotation())
sketch5.addGeometry([
    Part.Circle(Vector(25.7, -20, 0), Vector(0, 0, 1), 0.85),
    Part.Circle(Vector(14.3, -20, 0), Vector(0, 0, 1), 0.85),
], False)
sketch5.addConstraint([
    Sketcher.Constraint("Equal", 0, 1),
    Sketcher.Constraint("Horizontal", 0, 3, 1, 3),
    Sketcher.Constraint("Diameter", 0, 1.7),
    Sketcher.Constraint("DistanceY", 0, 3, -1, 1, 20.0),
    Sketcher.Constraint("DistanceX", -1, 1, 0, 3, 25.7),
    Sketcher.Constraint("DistanceX", -1, 1, 1, 3, 14.3),
])
pocket4 = doc.addObject("PartDesign::Pocket", "Pocket003")
body.addObject(pocket4)
pocket4.Profile = sketch5
pocket4.Length = 5
pocket4.Reversed = True
doc.recompute()

fillet2 = doc.addObject("PartDesign::Fillet", "Fillet001")
body.addObject(fillet2)
fillet2.Base = (pocket4, edges_at(pocket4, [
    (-35.9, 0, 8.5),
    (-34.436, -7.636, 8.5),
    (-2.5, 9.1, 0),
    (-22.5, -9.1, 8.5),
    (29.436, 10.564, 0),
    (30.9, 21.6, 0),
    (32.364, 32.636, 0),
    (40, 34.1, 0),
    (47.636, 32.636, 0),
    (49.1, -8.4, 0),
    (47.636, -49.436, 0),
    (-10.564, -10.564, 8.5),
    (20, -50.9, 0),
    (-7.636, -49.436, 0),
    (-9.1, -30, 0),
    (-10.564, -10.564, 0),
    (-22.5, -9.1, 0),
    (-34.436, -7.636, 0),
    (-35.9, 0, 0),
    (-9.1, -30, 8.5),
    (-34.436, 7.636, 0),
    (-7.636, -49.436, 8.5),
    (20, -50.9, 8.5),
    (47.636, -49.436, 8.5),
    (49.1, -8.4, 8.5),
    (-2.5, 9.1, 8.5),
    (47.636, 32.636, 8.5),
    (40, 34.1, 8.5),
    (32.364, 32.636, 8.5),
    (30.9, 21.6, 8.5),
    (29.436, 10.564, 8.5),
    (-34.436, 7.636, 8.5),
]))
fillet2.Radius = 2

# Sketch on XY plane
sketch6 = doc.addObject("Sketcher::SketchObject", "Sketch005")
body.addObject(sketch6)
sketch6.AttachmentSupport = (doc.XY_Plane, [""])
sketch6.MapMode = "FlatFace"
sketch6.AttachmentOffset = App.Placement(Vector(0, 0, 8.5), App.Rotation())
sketch6.addGeometry([
    Part.LineSegment(Vector(23.05, -36.9, 0), Vector(23.05, -46.9, 0)),
    Part.LineSegment(Vector(23.05, -46.9, 0), Vector(16.95, -46.9, 0)),
    Part.LineSegment(Vector(16.95, -46.9, 0), Vector(16.95, -36.9, 0)),
    Part.LineSegment(Vector(16.95, -36.9, 0), Vector(23.05, -36.9, 0)),
], False)
sketch6.addConstraint([
    Sketcher.Constraint("Coincident", 0, 2, 1, 1),
    Sketcher.Constraint("Coincident", 1, 2, 2, 1),
    Sketcher.Constraint("Coincident", 2, 2, 3, 1),
    Sketcher.Constraint("Coincident", 3, 2, 0, 1),
    Sketcher.Constraint("Vertical", 0),
    Sketcher.Constraint("Horizontal", 1),
    Sketcher.Constraint("Vertical", 2),
    Sketcher.Constraint("Horizontal", 3),
    Sketcher.Constraint("DistanceY", 0, 2, 0, 1, 10.0),
    Sketcher.Constraint("DistanceX", 1, 2, 1, 1, 6.1),
    Sketcher.Constraint("DistanceY", 0, 2, -1, 1, 46.9),
    Sketcher.Constraint("DistanceX", -1, 1, 0, 2, 23.05),
])
pocket5 = doc.addObject("PartDesign::Pocket", "Pocket004")
body.addObject(pocket5)
pocket5.Profile = sketch6
pocket5.Length = 2

# Sketch on XY plane
sketch7 = doc.addObject("Sketcher::SketchObject", "Sketch006")
body.addObject(sketch7)
sketch7.AttachmentSupport = (doc.XY_Plane, [""])
sketch7.MapMode = "FlatFace"
sketch7.AttachmentOffset = App.Placement(Vector(0, 0, 6.5), App.Rotation())
sketch7.addGeometry(Part.Circle(Vector(20, -45.3, 0), Vector(0, 0, 1), 0.85), False)
sketch7.addConstraint([
    Sketcher.Constraint("Diameter", 0, 1.7),
    Sketcher.Constraint("DistanceX", -1, 1, 0, 3, 20.0),
    Sketcher.Constraint("DistanceY", 0, 3, -1, 1, 45.3),
])
pocket6 = doc.addObject("PartDesign::Pocket", "Pocket005")
body.addObject(pocket6)
pocket6.Profile = sketch7
pocket6.Length = 5

# Sketch on XY plane
sketch8 = doc.addObject("Sketcher::SketchObject", "Sketch007")
body.addObject(sketch8)
sketch8.AttachmentSupport = (doc.XY_Plane, [""])
sketch8.MapMode = "FlatFace"
sketch8.AttachmentOffset = App.Placement(Vector(0, 0, 8.5), App.Rotation())
sketch8.addGeometry(Part.Circle(Vector(0, -40, 0), Vector(0, 0, 1), 3.65), False)
sketch8.addConstraint([
    Sketcher.Constraint("PointOnObject", 0, 3, -2),
    Sketcher.Constraint("Diameter", 0, 7.3),
    Sketcher.Constraint("DistanceY", 0, 3, -1, 1, 40.0),
])
pocket7 = doc.addObject("PartDesign::Pocket", "Pocket006")
body.addObject(pocket7)
pocket7.Profile = sketch8
pocket7.Length = 2.5

# Sketch on XY plane
sketch9 = doc.addObject("Sketcher::SketchObject", "Sketch008")
body.addObject(sketch9)
sketch9.AttachmentSupport = (doc.XY_Plane, [""])
sketch9.MapMode = "FlatFace"
sketch9.addGeometry(Part.Circle(Vector(0, 0, 0), Vector(0, 0, 1), 3.65), False)
sketch9.addConstraint([
    Sketcher.Constraint("Coincident", 0, 3, -1, 1),
    Sketcher.Constraint("Diameter", 0, 7.3),
])
pocket8 = doc.addObject("PartDesign::Pocket", "Pocket007")
body.addObject(pocket8)
pocket8.Profile = sketch9
pocket8.Length = 2.5
pocket8.Reversed = True

# Sketch on XY plane
sketch10 = doc.addObject("Sketcher::SketchObject", "Sketch009")
body.addObject(sketch10)
sketch10.AttachmentSupport = (doc.XY_Plane, [""])
sketch10.MapMode = "FlatFace"
sketch10.addGeometry(Part.Circle(Vector(0, -40, 0), Vector(0, 0, 1), 5), False)
sketch10.addConstraint([
    Sketcher.Constraint("PointOnObject", 0, 3, -2),
    Sketcher.Constraint("Diameter", 0, 10.0),
    Sketcher.Constraint("DistanceY", 0, 3, -1, 1, 40.0),
])
pocket9 = doc.addObject("PartDesign::Pocket", "Pocket008")
body.addObject(pocket9)
pocket9.Profile = sketch10
pocket9.Length = 2.5
pocket9.Reversed = True

# Sketch on XY plane
sketch11 = doc.addObject("Sketcher::SketchObject", "Sketch010")
body.addObject(sketch11)
sketch11.AttachmentSupport = (doc.XY_Plane, [""])
sketch11.MapMode = "FlatFace"
sketch11.AttachmentOffset = App.Placement(Vector(0, 0, 8.5), App.Rotation())
sketch11.addGeometry(Part.Circle(Vector(0, 0, 0), Vector(0, 0, 1), 5), False)
sketch11.addConstraint([
    Sketcher.Constraint("Coincident", 0, 3, -1, 1),
    Sketcher.Constraint("Diameter", 0, 10.0),
])
pocket10 = doc.addObject("PartDesign::Pocket", "Pocket009")
body.addObject(pocket10)
pocket10.Profile = sketch11
pocket10.Length = 2.5
doc.recompute()

chamfer2 = doc.addObject("PartDesign::Chamfer", "Chamfer001")
body.addObject(chamfer2)
chamfer2.Base = (pocket10, edges_at(pocket10, [(5, -40, 0), (-5, 0, 8.5)]))
chamfer2.Size = 0.5
doc.recompute()

chamfer3 = doc.addObject("PartDesign::Chamfer", "Chamfer002")
body.addObject(chamfer3)
chamfer3.Base = (chamfer2, edges_at(chamfer2, [
    (24.807, -27.807, 8.5),
    (25.1, -20, 8.5),
    (24.807, -12.193, 8.5),
    (20, -11.9, 8.5),
    (15.193, -12.193, 8.5),
    (14.9, -20, 8.5),
    (15.193, -27.807, 8.5),
    (20, -28.1, 8.5),
    (12.193, -15.193, 0),
    (20, -14.9, 0),
    (27.807, -15.193, 0),
    (28.1, -20, 0),
    (27.807, -24.807, 0),
    (20, -25.1, 0),
    (12.193, -24.807, 0),
    (11.9, -20, 0),
]))
chamfer3.Size = 0.3

doc.recompute()
